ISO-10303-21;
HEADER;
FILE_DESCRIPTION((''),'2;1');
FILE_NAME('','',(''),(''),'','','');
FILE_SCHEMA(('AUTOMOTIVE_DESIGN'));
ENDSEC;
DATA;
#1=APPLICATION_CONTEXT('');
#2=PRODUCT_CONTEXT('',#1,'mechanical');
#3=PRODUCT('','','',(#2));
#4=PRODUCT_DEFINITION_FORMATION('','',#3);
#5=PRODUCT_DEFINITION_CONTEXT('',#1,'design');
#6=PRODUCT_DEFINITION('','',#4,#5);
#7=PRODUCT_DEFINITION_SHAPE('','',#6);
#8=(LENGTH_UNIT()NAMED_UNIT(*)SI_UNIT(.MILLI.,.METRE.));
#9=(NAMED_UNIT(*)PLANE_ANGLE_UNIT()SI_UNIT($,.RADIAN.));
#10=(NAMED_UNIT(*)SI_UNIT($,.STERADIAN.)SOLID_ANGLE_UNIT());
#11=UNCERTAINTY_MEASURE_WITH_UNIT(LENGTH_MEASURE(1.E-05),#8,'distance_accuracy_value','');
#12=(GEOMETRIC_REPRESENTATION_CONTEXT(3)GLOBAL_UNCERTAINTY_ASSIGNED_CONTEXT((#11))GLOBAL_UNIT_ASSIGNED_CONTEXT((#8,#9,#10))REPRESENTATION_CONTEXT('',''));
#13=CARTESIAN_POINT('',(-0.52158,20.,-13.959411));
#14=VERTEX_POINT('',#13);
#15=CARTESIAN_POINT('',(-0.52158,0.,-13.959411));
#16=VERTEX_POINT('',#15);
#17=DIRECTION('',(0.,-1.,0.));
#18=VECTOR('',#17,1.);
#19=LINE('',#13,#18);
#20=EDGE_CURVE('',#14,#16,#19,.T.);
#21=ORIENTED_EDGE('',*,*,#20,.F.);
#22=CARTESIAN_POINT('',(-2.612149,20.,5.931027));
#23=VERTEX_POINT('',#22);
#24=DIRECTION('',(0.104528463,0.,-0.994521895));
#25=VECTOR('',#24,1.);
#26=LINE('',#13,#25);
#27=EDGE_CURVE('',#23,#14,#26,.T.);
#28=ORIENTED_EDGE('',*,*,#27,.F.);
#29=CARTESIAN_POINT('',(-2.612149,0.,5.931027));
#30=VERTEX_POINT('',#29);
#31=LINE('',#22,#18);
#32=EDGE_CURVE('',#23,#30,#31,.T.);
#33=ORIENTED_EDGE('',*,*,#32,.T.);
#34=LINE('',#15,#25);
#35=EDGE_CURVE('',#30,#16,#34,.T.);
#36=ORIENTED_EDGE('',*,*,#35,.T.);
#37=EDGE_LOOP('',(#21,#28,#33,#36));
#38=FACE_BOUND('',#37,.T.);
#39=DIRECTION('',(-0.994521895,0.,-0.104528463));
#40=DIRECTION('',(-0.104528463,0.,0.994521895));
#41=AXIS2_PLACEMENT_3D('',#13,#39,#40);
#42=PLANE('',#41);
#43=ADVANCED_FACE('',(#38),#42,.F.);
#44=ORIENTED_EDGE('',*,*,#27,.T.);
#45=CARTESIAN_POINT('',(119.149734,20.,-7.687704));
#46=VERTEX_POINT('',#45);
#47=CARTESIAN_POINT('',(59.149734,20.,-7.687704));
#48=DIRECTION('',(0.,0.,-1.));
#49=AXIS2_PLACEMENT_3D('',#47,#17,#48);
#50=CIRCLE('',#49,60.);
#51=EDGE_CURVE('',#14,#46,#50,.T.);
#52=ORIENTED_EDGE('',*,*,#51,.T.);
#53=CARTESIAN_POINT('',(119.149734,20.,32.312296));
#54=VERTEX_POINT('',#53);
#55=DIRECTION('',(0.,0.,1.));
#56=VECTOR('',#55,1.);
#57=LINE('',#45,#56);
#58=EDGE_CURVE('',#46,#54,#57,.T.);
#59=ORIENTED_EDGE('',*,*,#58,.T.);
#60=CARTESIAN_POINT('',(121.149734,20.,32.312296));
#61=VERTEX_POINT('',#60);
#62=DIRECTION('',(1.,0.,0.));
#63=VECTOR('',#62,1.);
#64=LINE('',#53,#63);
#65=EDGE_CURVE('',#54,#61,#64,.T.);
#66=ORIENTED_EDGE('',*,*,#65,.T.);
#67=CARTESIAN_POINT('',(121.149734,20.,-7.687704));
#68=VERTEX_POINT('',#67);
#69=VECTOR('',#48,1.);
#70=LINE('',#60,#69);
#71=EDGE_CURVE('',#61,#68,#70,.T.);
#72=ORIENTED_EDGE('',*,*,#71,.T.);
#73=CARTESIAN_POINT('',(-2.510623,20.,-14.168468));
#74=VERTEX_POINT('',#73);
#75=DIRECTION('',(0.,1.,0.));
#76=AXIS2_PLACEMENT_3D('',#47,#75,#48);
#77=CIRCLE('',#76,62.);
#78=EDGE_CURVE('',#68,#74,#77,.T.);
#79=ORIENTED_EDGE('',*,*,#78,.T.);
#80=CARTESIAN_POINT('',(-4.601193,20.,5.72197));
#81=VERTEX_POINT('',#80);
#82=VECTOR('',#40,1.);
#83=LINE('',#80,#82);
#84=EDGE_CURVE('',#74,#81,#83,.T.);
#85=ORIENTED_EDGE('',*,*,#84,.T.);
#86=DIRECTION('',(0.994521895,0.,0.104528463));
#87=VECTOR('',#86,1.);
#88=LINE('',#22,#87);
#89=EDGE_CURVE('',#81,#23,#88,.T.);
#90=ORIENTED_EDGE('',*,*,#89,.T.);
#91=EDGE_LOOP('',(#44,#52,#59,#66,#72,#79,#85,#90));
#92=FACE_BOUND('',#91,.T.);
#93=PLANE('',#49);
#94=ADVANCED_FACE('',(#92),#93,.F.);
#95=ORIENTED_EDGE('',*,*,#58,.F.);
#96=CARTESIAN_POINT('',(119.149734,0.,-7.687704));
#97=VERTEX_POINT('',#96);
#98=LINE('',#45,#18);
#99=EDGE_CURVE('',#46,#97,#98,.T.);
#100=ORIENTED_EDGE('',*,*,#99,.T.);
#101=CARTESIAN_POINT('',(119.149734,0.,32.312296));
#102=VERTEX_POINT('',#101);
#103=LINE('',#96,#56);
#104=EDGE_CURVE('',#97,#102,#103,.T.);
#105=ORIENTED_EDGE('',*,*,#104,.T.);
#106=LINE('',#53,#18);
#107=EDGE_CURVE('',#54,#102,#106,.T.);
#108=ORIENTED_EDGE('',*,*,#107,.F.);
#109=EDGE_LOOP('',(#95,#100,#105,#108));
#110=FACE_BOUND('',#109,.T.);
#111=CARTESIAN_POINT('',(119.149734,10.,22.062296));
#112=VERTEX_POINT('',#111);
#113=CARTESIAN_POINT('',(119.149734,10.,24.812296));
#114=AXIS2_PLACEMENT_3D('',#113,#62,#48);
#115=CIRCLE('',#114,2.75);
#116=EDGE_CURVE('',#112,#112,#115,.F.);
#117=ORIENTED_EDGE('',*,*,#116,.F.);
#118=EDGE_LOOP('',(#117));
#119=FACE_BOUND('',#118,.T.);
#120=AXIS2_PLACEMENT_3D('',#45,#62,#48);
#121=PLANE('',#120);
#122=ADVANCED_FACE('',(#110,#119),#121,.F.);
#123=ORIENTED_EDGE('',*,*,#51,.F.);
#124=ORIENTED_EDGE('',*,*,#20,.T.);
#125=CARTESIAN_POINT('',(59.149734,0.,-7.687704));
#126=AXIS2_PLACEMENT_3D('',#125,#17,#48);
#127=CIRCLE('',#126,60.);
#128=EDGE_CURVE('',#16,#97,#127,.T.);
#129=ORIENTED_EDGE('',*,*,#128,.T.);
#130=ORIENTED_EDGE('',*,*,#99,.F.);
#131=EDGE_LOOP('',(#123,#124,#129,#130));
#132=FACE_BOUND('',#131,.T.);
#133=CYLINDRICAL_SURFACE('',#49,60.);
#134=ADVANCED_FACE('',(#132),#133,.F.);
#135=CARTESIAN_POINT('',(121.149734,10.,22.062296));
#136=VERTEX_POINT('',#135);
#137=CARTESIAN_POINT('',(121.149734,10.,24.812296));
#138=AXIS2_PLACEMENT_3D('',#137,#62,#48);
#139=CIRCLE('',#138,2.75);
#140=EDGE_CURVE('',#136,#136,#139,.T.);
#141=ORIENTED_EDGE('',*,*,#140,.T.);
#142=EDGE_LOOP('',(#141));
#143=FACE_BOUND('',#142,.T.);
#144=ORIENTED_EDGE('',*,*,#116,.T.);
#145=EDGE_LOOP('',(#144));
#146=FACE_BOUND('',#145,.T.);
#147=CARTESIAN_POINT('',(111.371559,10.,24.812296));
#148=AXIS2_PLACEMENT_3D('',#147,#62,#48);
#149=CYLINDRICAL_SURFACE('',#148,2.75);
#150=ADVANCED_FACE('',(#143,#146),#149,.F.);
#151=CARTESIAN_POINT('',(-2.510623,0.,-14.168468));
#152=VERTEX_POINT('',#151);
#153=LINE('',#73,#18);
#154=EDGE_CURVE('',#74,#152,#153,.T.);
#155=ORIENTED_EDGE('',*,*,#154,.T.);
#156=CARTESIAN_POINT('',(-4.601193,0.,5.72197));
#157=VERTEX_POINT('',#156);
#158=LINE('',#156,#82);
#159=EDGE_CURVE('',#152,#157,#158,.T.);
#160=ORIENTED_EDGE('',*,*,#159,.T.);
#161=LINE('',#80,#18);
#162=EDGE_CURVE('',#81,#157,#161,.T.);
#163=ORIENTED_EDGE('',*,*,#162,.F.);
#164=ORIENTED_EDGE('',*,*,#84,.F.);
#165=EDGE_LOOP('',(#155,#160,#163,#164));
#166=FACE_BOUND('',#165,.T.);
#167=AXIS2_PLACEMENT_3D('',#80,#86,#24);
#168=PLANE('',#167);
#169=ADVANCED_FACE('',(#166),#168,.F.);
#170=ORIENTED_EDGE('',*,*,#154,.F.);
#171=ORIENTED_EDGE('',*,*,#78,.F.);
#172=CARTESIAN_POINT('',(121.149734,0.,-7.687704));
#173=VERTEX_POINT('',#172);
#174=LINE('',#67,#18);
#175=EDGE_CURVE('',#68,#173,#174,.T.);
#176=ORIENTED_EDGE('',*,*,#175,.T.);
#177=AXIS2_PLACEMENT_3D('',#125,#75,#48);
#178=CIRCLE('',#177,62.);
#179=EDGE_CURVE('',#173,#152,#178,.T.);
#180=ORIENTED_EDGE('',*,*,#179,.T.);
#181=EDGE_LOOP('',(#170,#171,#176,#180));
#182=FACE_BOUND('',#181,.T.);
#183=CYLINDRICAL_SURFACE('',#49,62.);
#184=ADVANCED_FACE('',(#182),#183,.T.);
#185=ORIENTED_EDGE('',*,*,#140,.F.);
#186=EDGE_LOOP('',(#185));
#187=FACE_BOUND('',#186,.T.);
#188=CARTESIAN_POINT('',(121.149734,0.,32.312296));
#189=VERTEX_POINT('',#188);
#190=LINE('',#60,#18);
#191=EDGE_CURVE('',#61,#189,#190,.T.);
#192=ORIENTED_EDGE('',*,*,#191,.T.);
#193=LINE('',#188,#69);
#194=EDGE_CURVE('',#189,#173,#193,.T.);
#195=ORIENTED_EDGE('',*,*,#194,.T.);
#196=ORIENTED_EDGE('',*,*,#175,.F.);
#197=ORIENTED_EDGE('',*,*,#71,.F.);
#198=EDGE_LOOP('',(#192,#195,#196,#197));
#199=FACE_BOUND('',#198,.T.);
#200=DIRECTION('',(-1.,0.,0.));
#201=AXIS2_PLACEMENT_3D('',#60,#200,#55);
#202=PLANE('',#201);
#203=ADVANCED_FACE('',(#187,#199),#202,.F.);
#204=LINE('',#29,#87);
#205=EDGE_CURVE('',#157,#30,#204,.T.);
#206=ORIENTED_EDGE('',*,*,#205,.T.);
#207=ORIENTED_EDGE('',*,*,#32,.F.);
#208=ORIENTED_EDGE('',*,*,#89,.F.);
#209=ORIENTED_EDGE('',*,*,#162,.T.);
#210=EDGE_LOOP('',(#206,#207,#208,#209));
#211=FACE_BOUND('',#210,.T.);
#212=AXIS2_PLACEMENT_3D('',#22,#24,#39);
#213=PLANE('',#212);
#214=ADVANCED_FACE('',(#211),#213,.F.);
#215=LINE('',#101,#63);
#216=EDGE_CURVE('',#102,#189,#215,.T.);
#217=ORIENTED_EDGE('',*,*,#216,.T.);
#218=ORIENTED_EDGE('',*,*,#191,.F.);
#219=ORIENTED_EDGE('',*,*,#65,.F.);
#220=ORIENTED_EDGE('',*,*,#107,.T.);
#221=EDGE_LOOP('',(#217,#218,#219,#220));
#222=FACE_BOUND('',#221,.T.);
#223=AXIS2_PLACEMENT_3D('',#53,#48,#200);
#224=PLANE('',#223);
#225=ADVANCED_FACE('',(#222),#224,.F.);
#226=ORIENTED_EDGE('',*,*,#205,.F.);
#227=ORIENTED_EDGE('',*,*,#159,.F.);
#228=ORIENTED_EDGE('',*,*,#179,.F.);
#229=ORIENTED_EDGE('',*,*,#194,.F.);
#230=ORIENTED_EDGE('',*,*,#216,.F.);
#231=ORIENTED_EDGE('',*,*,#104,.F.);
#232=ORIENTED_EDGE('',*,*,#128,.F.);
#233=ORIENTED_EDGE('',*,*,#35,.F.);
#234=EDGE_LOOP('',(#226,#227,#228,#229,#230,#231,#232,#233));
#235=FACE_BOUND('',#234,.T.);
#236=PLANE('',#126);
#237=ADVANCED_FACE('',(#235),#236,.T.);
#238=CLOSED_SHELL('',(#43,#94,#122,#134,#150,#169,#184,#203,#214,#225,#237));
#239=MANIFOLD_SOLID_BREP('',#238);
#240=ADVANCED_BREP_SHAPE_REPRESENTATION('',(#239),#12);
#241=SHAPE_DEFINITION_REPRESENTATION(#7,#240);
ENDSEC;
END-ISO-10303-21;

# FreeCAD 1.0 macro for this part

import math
import FreeCAD as App
import Part
import Sketcher
from FreeCAD import Vector
Q = App.Units.Quantity

doc = App.newDocument("Part")
body = doc.addObject("PartDesign::Body", "Body")

# Sketch on XZ plane
sketch1 = body.newObject("Sketcher::SketchObject", "Sketch")
sketch1.AttachmentSupport = (doc.getObject("XZ_Plane"), [""])
sketch1.MapMode = "FlatFace"
sketch1.addGeometry(Part.LineSegment(Vector(-2.6, 5.9, 0), Vector(-0.5, -14, 0)), False)
sketch1.addGeometry(Part.ArcOfCircle(Part.Circle(Vector(59.1, -7.7, 0), Vector(0, 0, 1), 60), math.radians(-174), math.radians(0)), False)
sketch1.addGeometry(Part.LineSegment(Vector(119.1, -7.7, 0), Vector(119.1, 32.3, 0)), False)
sketch1.addGeometry(Part.LineSegment(Vector(119.1, 32.3, 0), Vector(121.1, 32.3, 0)), False)
sketch1.addGeometry(Part.LineSegment(Vector(121.1, 32.3, 0), Vector(121.1, -7.7, 0)), False)
sketch1.addGeometry(Part.ArcOfCircle(Part.Circle(Vector(59.1, -7.7, 0), Vector(0, 0, 1), 62), math.radians(-174), math.radians(0)), False)
sketch1.addGeometry(Part.LineSegment(Vector(-2.5, -14.2, 0), Vector(-4.6, 5.7, 0)), False)
sketch1.addGeometry(Part.LineSegment(Vector(-4.6, 5.7, 0), Vector(-2.6, 5.9, 0)), False)
sketch1.addConstraint(Sketcher.Constraint("Tangent", 0, 2, 1, 1))
sketch1.addConstraint(Sketcher.Constraint("Tangent", 1, 2, 2, 1))
sketch1.addConstraint(Sketcher.Constraint("Coincident", 2, 2, 3, 1))
sketch1.addConstraint(Sketcher.Constraint("Coincident", 3, 2, 4, 1))
sketch1.addConstraint(Sketcher.Constraint("Tangent", 4, 2, 5, 2))
sketch1.addConstraint(Sketcher.Constraint("Tangent", 5, 1, 6, 1))
sketch1.addConstraint(Sketcher.Constraint("Coincident", 6, 2, 7, 1))
sketch1.addConstraint(Sketcher.Constraint("Coincident", 7, 2, 0, 1))
sketch1.addConstraint(Sketcher.Constraint("Vertical", 2))
sketch1.addConstraint(Sketcher.Constraint("Horizontal", 3))
sketch1.addConstraint(Sketcher.Constraint("Vertical", 4))
sketch1.addConstraint(Sketcher.Constraint("Coincident", 5, 3, 1, 3))
sketch1.addConstraint(Sketcher.Constraint("Parallel", 0, 6))
sketch1.addConstraint(Sketcher.Constraint("Perpendicular", 6, 7))
sketch1.addConstraint(Sketcher.Constraint("Radius", 1, Q("60 mm")))
sketch1.addConstraint(Sketcher.Constraint("Radius", 5, Q("62 mm")))
sketch1.addConstraint(Sketcher.Constraint("DistanceY", 2, 1, 2, 2, Q("40 mm")))
sketch1.addConstraint(Sketcher.Constraint("Angle", 0, Q("-84 deg")))
sketch1.addConstraint(Sketcher.Constraint("Distance", 0, Q("20 mm")))
sketch1.addConstraint(Sketcher.Constraint("DistanceX", 0, 2, -1, 1, Q("0.52158 mm")))
sketch1.addConstraint(Sketcher.Constraint("DistanceY", 0, 2, -1, 1, Q("13.959411 mm")))
pad1 = body.newObject("PartDesign::Pad", "Pad")
pad1.Profile = sketch1
pad1.Length = 20
pad1.Reversed = True

# Sketch on YZ plane
sketch2 = body.newObject("Sketcher::SketchObject", "Sketch001")
sketch2.AttachmentSupport = (doc.getObject("YZ_Plane"), [""])
sketch2.MapMode = "FlatFace"
sketch2.AttachmentOffset = App.Placement(Vector(0, 0, 121.149734), App.Rotation())
sketch2.addGeometry(Part.Circle(Vector(10, 24.8, 0), Vector(0, 0, 1), 2.8), False)
sketch2.addConstraint(Sketcher.Constraint("Diameter", 0, Q("5.5 mm")))
sketch2.addConstraint(Sketcher.Constraint("DistanceX", -1, 1, 0, 3, Q("10 mm")))
sketch2.addConstraint(Sketcher.Constraint("DistanceY", -1, 1, 0, 3, Q("24.812296 mm")))
pocket1 = body.newObject("PartDesign::Pocket", "Pocket")
pocket1.Profile = sketch2
pocket1.Length = 2

doc.recompute()
